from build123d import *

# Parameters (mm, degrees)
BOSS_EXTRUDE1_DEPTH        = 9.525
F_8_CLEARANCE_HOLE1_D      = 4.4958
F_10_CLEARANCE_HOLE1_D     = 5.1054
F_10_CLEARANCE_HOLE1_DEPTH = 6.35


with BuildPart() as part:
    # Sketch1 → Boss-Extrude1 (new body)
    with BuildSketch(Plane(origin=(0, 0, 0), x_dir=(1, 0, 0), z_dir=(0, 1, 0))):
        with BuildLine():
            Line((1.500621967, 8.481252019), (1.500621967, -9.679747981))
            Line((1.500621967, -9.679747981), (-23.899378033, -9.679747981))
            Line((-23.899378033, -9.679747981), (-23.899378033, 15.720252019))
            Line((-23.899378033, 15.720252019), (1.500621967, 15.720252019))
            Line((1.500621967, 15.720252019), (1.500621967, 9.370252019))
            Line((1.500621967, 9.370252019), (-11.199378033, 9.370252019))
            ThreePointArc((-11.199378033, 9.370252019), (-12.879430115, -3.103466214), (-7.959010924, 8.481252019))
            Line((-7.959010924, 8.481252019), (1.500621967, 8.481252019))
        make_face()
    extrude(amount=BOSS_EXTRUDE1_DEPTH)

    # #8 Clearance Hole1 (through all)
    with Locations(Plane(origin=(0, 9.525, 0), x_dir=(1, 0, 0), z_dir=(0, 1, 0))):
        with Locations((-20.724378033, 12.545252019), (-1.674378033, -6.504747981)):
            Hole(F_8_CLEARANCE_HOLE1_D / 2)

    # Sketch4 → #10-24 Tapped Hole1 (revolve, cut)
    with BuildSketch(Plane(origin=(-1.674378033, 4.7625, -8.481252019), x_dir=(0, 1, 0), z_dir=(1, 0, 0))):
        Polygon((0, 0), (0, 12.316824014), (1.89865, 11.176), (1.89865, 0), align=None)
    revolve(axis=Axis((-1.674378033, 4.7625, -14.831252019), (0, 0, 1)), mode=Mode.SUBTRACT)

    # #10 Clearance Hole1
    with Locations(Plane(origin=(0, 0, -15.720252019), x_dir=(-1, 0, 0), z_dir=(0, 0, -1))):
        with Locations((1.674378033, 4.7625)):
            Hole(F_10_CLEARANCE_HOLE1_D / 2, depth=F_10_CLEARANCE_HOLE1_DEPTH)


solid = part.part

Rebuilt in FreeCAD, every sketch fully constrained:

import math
import FreeCAD as App
import Part
import Sketcher

V = App.Vector
Q = App.Units.Quantity


def add_polygon(sketch, points):
    """Adds a closed chain of lines whose ends are joined by coincident constraints."""
    first, n = sketch.GeometryCount, len(points)
    for a, b in zip(points, points[1:] + points[:1]):
        sketch.addGeometry(Part.LineSegment(App.Vector(*a, 0), App.Vector(*b, 0)), False)
    for i in range(n):
        sketch.addConstraint(Sketcher.Constraint("Coincident", first + i, 2, first + (i + 1) % n, 1))

doc = App.newDocument("Part")
params = doc.addObject("Spreadsheet::Sheet", "Params")
for row, (alias, value) in enumerate([
    ("sketch1_width", "1 in"),
    ("sketch1_radius", "0.25 in"),
    ("sketch1_width2", "0.5 in"),
    ("sketch1_height", "0.25 in"),
    ("sketch1_height2", "0.715 in"),
    ("pad1_length", "0.375 in"),
    ("sketch2_diameter", "0.177 in"),
    ("hole_diameter", "0.177 in"),
    ("sketch3_height", "0.44 in"),
    ("groove_angle", "360 deg"),
    ("sketch4_diameter", "0.201 in"),
    ("hole2_diameter", "0.201 in"),
    ("hole2_depth", "0.25 in"),
], start=1):
    params.set(f"A{row}", alias)
    params.set(f"B{row}", "=" + value)
    params.setAlias(f"B{row}", alias)

body = doc.addObject("PartDesign::Body", "Body")

# Sketch on XZ plane
sketch1 = doc.addObject("Sketcher::SketchObject", "Sketch")
body.addObject(sketch1)
sketch1.AttachmentSupport = (doc.XZ_Plane, [""])
sketch1.MapMode = "FlatFace"
sketch1.addGeometry(Part.LineSegment(V(1.500622, 9.679748, 0), V(1.500622, -8.481252, 0)), False)
sketch1.addGeometry(Part.LineSegment(V(1.500622, -8.481252, 0), V(-7.959011, -8.481252, 0)), False)
sketch1.addGeometry(Part.ArcOfCircle(Part.Circle(V(-11.199378, -3.020252, 0), V(0, 0, 1), 6.35), math.radians(-59.316583), math.radians(270)), False)
sketch1.addGeometry(Part.LineSegment(V(-11.199378, -9.370252, 0), V(1.500622, -9.370252, 0)), False)
sketch1.addGeometry(Part.LineSegment(V(1.500622, -9.370252, 0), V(1.500622, -15.720252, 0)), False)
sketch1.addGeometry(Part.LineSegment(V(1.500622, -15.720252, 0), V(-23.899378, -15.720252, 0)), False)
sketch1.addGeometry(Part.LineSegment(V(-23.899378, -15.720252, 0), V(-23.899378, 9.679748, 0)), False)
sketch1.addGeometry(Part.LineSegment(V(-23.899378, 9.679748, 0), V(1.500622, 9.679748, 0)), False)
sketch1.addConstraint(Sketcher.Constraint("Coincident", 0, 2, 1, 1))
sketch1.addConstraint(Sketcher.Constraint("Coincident", 1, 2, 2, 1))
sketch1.addConstraint(Sketcher.Constraint("Tangent", 2, 2, 3, 1))
sketch1.addConstraint(Sketcher.Constraint("Coincident", 3, 2, 4, 1))
sketch1.addConstraint(Sketcher.Constraint("Coincident", 4, 2, 5, 1))
sketch1.addConstraint(Sketcher.Constraint("Coincident", 5, 2, 6, 1))
sketch1.addConstraint(Sketcher.Constraint("Coincident", 6, 2, 7, 1))
sketch1.addConstraint(Sketcher.Constraint("Coincident", 7, 2, 0, 1))
sketch1.addConstraint(Sketcher.Constraint("Vertical", 0))
sketch1.addConstraint(Sketcher.Constraint("Horizontal", 1))
sketch1.addConstraint(Sketcher.Constraint("Horizontal", 3))
sketch1.addConstraint(Sketcher.Constraint("Vertical", 4))
sketch1.addConstraint(Sketcher.Constraint("Horizontal", 5))
sketch1.addConstraint(Sketcher.Constraint("Vertical", 6))
sketch1.addConstraint(Sketcher.Constraint("Horizontal", 7))
sketch1.addConstraint(Sketcher.Constraint("Vertical", 0, 2, 3, 2))
sketch1.addConstraint(Sketcher.Constraint("Equal", 7, 6))
sketch1.addConstraint(Sketcher.Constraint("DistanceX", 5, 2, 5, 1, Q("1 in")))
sketch1.addConstraint(Sketcher.Constraint("Radius", 2, Q("0.25 in")))
sketch1.addConstraint(Sketcher.Constraint("DistanceX", 3, 1, 3, 2, Q("0.5 in")))
sketch1.addConstraint(Sketcher.Constraint("DistanceY", 4, 2, 4, 1, Q("0.25 in")))
sketch1.addConstraint(Sketcher.Constraint("DistanceY", 0, 2, 0, 1, Q("0.715 in")))
sketch1.addConstraint(Sketcher.Constraint("DistanceX", 2, 3, -1, 1, Q("11.199378 mm")))
sketch1.addConstraint(Sketcher.Constraint("DistanceY", 2, 3, -1, 1, Q("3.020252 mm")))
sketch1.setExpression("Constraints[17]", "Params.sketch1_width")
sketch1.setExpression("Constraints[18]", "Params.sketch1_radius")
sketch1.setExpression("Constraints[19]", "Params.sketch1_width2")
sketch1.setExpression("Constraints[20]", "Params.sketch1_height")
sketch1.setExpression("Constraints[21]", "Params.sketch1_height2")
pad1 = doc.addObject("PartDesign::Pad", "Pad")
body.addObject(pad1)
pad1.Profile = sketch1
pad1.setExpression("Length", "Params.pad1_length")
pad1.Reversed = True

# Sketch on XZ plane
sketch2 = doc.addObject("Sketcher::SketchObject", "Sketch001")
body.addObject(sketch2)
sketch2.AttachmentSupport = (doc.XZ_Plane, [""])
sketch2.MapMode = "FlatFace"
sketch2.AttachmentOffset = App.Placement(V(0, 0, -0.375 * 25.4), App.Rotation())
sketch2.addGeometry(Part.Circle(V(-20.724378, -12.545252, 0), V(0, 0, 1), 2.2479), False)
sketch2.addGeometry(Part.Circle(V(-1.674378, 6.504748, 0), V(0, 0, 1), 2.2479), False)
sketch2.addConstraint(Sketcher.Constraint("Equal", 0, 1))
sketch2.addConstraint(Sketcher.Constraint("Diameter", 0, Q("0.177 in")))
sketch2.addConstraint(Sketcher.Constraint("DistanceX", 0, 3, 1, 3, Q("0.75 in")))
sketch2.addConstraint(Sketcher.Constraint("DistanceY", 0, 3, 1, 3, Q("0.75 in")))
sketch2.addConstraint(Sketcher.Constraint("DistanceX", 0, 3, -1, 1, Q("20.724378 mm")))
sketch2.addConstraint(Sketcher.Constraint("DistanceY", 0, 3, -1, 1, Q("12.545252 mm")))
sketch2.setExpression("Constraints[1]", "Params.sketch2_diameter")
doc.recompute()
hole = doc.addObject("PartDesign::Hole", "Hole")
body.addObject(hole)
hole.Profile = sketch2
hole.ThreadType = "None"
hole.setExpression("Diameter", "Params.hole_diameter")
hole.DepthType = "ThroughAll"
hole.Reversed = True

# Sketch on YZ plane
sketch3 = doc.addObject("Sketcher::SketchObject", "Sketch002")
body.addObject(sketch3)
sketch3.AttachmentSupport = (doc.YZ_Plane, [""])
sketch3.MapMode = "FlatFace"
sketch3.AttachmentOffset = App.Placement(V(0, 0, -1.674378), App.Rotation())
add_polygon(sketch3, [(4.7625, 3.835572), (4.7625, -8.481252), (6.66115, -8.481252), (6.66115, 2.694748)])  # lines 0-3
sketch3.addGeometry(Part.LineSegment(V(4.7625, -8.481252, 0), V(4.7625, 3.835572, 0)), True)  # axis
sketch3.addConstraint(Sketcher.Constraint("Vertical", 0))
sketch3.addConstraint(Sketcher.Constraint("Horizontal", 1))
sketch3.addConstraint(Sketcher.Constraint("Vertical", 2))
sketch3.addConstraint(Sketcher.Constraint("Vertical", 4))
sketch3.addConstraint(Sketcher.Constraint("Coincident", 4, 1, 0, 2))
sketch3.addConstraint(Sketcher.Constraint("Equal", 0, 4))
sketch3.addConstraint(Sketcher.Constraint("Angle", 3, Q("149 deg")))
sketch3.addConstraint(Sketcher.Constraint("DistanceY", 2, 1, 2, 2, Q("0.44 in")))
sketch3.addConstraint(Sketcher.Constraint("DistanceX", -1, 1, 0, 2, Q("0.1875 in")))
sketch3.addConstraint(Sketcher.Constraint("DistanceX", 1, 1, 1, 2, Q("1.89865 mm")))
sketch3.addConstraint(Sketcher.Constraint("DistanceY", -1, 1, 3, 2, Q("3.835572 mm")))
sketch3.setExpression("Constraints[11]", "Params.sketch3_height")
groove = doc.addObject("PartDesign::Groove", "Groove")
body.addObject(groove)
groove.Profile = sketch3
groove.ReferenceAxis = (sketch3, ["Axis0"])
groove.setExpression("Angle", "Params.groove_angle")

# Sketch on XY plane
sketch4 = doc.addObject("Sketcher::SketchObject", "Sketch003")
body.addObject(sketch4)
sketch4.AttachmentSupport = (doc.XY_Plane, [""])
sketch4.MapMode = "FlatFace"
sketch4.AttachmentOffset = App.Placement(V(0, 0, -15.720252), App.Rotation())
sketch4.addGeometry(Part.Circle(V(-1.674378, 4.7625, 0), V(0, 0, 1), 2.5527), False)
sketch4.addConstraint(Sketcher.Constraint("Diameter", 0, Q("0.201 in")))
sketch4.addConstraint(Sketcher.Constraint("DistanceY", -1, 1, 0, 3, Q("0.1875 in")))
sketch4.addConstraint(Sketcher.Constraint("DistanceX", 0, 3, -1, 1, Q("1.674378 mm")))
sketch4.setExpression("Constraints[0]", "Params.sketch4_diameter")
doc.recompute()
hole2 = doc.addObject("PartDesign::Hole", "Hole001")
body.addObject(hole2)
hole2.Profile = sketch4
hole2.ThreadType = "None"
hole2.setExpression("Diameter", "Params.hole2_diameter")
hole2.DepthType = "Dimension"
hole2.setExpression("Depth", "Params.hole2_depth")
hole2.DrillPoint = "Flat"
hole2.Reversed = True

doc.recompute()
